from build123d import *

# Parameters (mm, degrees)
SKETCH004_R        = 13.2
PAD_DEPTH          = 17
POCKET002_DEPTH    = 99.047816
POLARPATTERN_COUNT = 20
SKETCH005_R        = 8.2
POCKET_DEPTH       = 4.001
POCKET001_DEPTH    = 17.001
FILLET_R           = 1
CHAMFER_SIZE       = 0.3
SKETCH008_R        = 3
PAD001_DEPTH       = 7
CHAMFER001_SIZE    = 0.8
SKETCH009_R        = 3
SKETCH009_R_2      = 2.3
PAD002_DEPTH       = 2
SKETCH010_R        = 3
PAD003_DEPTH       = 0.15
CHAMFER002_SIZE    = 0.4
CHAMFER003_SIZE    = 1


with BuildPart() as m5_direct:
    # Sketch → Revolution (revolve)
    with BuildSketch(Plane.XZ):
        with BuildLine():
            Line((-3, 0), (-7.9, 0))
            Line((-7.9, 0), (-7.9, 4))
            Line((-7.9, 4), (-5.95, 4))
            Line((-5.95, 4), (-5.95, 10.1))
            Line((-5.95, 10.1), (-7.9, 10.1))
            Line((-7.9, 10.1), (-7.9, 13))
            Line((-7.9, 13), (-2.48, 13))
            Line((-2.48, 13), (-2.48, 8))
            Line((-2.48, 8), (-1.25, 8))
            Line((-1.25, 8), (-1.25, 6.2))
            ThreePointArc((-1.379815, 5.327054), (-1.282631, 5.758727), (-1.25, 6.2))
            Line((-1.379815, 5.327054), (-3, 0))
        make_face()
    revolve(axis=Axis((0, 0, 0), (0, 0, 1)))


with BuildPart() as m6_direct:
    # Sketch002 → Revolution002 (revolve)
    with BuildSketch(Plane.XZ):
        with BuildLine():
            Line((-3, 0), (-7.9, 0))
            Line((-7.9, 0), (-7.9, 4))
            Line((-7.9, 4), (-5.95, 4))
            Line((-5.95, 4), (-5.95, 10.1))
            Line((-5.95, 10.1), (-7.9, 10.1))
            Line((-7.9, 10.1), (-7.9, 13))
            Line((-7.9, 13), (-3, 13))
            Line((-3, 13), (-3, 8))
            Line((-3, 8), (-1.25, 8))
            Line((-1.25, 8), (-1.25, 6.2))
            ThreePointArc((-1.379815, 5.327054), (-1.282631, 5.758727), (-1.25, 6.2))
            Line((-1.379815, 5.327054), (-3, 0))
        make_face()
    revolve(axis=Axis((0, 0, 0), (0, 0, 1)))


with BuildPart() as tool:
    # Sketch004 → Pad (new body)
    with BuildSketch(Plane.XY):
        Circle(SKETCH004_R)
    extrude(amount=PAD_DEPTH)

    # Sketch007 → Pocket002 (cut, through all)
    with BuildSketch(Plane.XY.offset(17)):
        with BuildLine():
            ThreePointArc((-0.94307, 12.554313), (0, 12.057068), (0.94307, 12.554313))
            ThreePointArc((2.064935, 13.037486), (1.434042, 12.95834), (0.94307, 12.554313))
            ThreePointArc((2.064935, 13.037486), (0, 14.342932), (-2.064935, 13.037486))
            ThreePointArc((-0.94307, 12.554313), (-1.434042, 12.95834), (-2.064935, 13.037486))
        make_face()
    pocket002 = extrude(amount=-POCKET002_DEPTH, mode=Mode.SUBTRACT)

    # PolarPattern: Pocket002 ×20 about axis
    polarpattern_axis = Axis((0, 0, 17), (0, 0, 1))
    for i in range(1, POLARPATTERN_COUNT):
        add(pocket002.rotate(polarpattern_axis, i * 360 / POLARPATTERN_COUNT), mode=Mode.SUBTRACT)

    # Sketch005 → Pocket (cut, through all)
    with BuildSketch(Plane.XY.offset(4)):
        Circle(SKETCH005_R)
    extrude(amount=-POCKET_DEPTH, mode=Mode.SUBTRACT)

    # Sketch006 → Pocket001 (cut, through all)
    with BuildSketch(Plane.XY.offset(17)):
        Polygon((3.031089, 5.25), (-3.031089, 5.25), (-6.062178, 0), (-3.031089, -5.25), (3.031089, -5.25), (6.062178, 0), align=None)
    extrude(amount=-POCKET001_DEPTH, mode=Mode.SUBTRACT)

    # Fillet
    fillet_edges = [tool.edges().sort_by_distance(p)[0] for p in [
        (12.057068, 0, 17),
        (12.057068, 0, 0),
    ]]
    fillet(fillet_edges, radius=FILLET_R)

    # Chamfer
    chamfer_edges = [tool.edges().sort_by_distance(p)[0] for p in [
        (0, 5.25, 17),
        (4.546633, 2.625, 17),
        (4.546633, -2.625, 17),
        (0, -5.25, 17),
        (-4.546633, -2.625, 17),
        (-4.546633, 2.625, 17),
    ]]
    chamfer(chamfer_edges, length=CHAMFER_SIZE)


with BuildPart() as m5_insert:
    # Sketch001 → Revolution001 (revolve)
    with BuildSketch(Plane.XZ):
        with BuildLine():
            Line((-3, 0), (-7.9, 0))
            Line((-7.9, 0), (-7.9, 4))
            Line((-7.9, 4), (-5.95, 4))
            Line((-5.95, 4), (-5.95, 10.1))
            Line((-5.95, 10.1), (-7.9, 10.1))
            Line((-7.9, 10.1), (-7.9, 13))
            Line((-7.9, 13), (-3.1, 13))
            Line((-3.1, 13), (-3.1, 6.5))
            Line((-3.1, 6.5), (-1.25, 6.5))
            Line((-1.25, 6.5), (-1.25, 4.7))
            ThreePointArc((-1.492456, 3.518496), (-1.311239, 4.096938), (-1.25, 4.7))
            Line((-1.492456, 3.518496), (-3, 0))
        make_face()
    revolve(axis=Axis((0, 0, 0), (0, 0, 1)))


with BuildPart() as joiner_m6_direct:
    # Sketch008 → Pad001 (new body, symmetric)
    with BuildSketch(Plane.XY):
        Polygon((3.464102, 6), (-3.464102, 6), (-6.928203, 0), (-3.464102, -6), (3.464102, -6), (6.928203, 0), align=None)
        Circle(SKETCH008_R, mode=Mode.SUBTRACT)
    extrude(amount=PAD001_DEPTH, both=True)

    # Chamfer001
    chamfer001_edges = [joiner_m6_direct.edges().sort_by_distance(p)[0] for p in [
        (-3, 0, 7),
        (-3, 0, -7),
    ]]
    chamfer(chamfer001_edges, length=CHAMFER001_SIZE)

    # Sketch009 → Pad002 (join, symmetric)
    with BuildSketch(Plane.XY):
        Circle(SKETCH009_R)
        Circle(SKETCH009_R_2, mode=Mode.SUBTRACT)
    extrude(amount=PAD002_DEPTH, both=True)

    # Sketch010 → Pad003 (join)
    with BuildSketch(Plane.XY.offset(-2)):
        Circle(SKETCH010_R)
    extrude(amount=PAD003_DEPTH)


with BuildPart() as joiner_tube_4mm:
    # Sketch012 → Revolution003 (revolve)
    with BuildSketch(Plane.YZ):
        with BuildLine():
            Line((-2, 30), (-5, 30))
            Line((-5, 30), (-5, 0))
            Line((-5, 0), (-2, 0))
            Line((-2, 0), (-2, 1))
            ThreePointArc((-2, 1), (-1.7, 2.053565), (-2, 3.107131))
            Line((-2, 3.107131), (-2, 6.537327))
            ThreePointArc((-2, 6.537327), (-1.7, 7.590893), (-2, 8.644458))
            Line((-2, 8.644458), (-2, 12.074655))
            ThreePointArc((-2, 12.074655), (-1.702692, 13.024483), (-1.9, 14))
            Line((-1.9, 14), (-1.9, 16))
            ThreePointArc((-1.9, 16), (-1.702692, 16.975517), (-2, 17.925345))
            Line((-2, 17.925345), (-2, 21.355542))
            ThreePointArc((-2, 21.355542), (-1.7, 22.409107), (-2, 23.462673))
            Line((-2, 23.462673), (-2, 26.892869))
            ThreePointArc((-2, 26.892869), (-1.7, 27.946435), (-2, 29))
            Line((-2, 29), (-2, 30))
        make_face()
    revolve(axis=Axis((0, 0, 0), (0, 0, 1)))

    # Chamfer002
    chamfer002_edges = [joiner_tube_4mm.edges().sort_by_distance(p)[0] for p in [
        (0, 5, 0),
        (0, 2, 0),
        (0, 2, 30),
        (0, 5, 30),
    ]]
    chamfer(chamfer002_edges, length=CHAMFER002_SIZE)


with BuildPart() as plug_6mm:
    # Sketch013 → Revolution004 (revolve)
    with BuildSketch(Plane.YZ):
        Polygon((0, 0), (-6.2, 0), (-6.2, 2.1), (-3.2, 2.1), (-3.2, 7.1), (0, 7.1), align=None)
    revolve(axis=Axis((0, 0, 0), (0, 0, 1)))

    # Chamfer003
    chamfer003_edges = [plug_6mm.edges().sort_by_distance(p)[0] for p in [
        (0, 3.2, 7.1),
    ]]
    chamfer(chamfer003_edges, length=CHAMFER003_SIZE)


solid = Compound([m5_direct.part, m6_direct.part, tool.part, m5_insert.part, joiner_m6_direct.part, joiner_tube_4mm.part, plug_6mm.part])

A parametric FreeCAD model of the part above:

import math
import FreeCAD as App
import Part
import Sketcher
Q = App.Units.Quantity


def edges_at(feature, points):
    """Names of the edges that pass closest to the given points."""
    edges = feature.Shape.Edges
    near = lambda p: min(range(len(edges)), key=lambda i: edges[i].distToShape(Part.Vertex(*p))[0])
    return sorted({f"Edge{near(p) + 1}" for p in points})

doc = App.newDocument("Part")
body = doc.addObject("PartDesign::Body", "Body")

sketch1 = body.newObject("Sketcher::SketchObject", "Sketch")
sketch1.AttachmentSupport = (doc.getObject("XZ_Plane"), [""])
sketch1.MapMode = "FlatFace"
sketch1.addGeometry(Part.LineSegment(App.Vector(-7.9, 0, 0), App.Vector(-3, 0, 0)), False)
sketch1.addGeometry(Part.LineSegment(App.Vector(-3, 0, 0), App.Vector(-1.4, 5.3, 0)), False)
sketch1.addGeometry(Part.ArcOfCircle(Part.Circle(App.Vector(-4.2, 6.2, 0), App.Vector(0, 0, 1), 3), math.radians(-16.92), math.radians(0)), False)
sketch1.addGeometry(Part.LineSegment(App.Vector(-1.2, 6.2, 0), App.Vector(-1.2, 8, 0)), False)
sketch1.addGeometry(Part.LineSegment(App.Vector(-1.2, 8, 0), App.Vector(-2.5, 8, 0)), False)
sketch1.addGeometry(Part.LineSegment(App.Vector(-2.5, 8, 0), App.Vector(-2.5, 13, 0)), False)
sketch1.addGeometry(Part.LineSegment(App.Vector(-2.5, 13, 0), App.Vector(-7.9, 13, 0)), False)
sketch1.addGeometry(Part.LineSegment(App.Vector(-7.9, 13, 0), App.Vector(-7.9, 10.1, 0)), False)
sketch1.addGeometry(Part.LineSegment(App.Vector(-7.9, 10.1, 0), App.Vector(-6, 10.1, 0)), False)
sketch1.addGeometry(Part.LineSegment(App.Vector(-6, 10.1, 0), App.Vector(-6, 4, 0)), False)
sketch1.addGeometry(Part.LineSegment(App.Vector(-6, 4, 0), App.Vector(-7.9, 4, 0)), False)
sketch1.addGeometry(Part.LineSegment(App.Vector(-7.9, 4, 0), App.Vector(-7.9, 0, 0)), False)
sketch1.addConstraint(Sketcher.Constraint("Coincident", 0, 2, 1, 1))
sketch1.addConstraint(Sketcher.Constraint("Coincident", 1, 2, 2, 1))
sketch1.addConstraint(Sketcher.Constraint("Tangent", 2, 2, 3, 1))
sketch1.addConstraint(Sketcher.Constraint("Coincident", 3, 2, 4, 1))
sketch1.addConstraint(Sketcher.Constraint("Coincident", 4, 2, 5, 1))
sketch1.addConstraint(Sketcher.Constraint("Coincident", 5, 2, 6, 1))
sketch1.addConstraint(Sketcher.Constraint("Coincident", 6, 2, 7, 1))
sketch1.addConstraint(Sketcher.Constraint("Coincident", 7, 2, 8, 1))
sketch1.addConstraint(Sketcher.Constraint("Coincident", 8, 2, 9, 1))
sketch1.addConstraint(Sketcher.Constraint("Coincident", 9, 2, 10, 1))
sketch1.addConstraint(Sketcher.Constraint("Coincident", 10, 2, 11, 1))
sketch1.addConstraint(Sketcher.Constraint("Coincident", 11, 2, 0, 1))
sketch1.addConstraint(Sketcher.Constraint("Horizontal", 0))
sketch1.addConstraint(Sketcher.Constraint("Vertical", 3))
sketch1.addConstraint(Sketcher.Constraint("Horizontal", 4))
sketch1.addConstraint(Sketcher.Constraint("Vertical", 5))
sketch1.addConstraint(Sketcher.Constraint("Horizontal", 6))
sketch1.addConstraint(Sketcher.Constraint("Vertical", 7))
sketch1.addConstraint(Sketcher.Constraint("Horizontal", 8))
sketch1.addConstraint(Sketcher.Constraint("Vertical", 9))
sketch1.addConstraint(Sketcher.Constraint("Horizontal", 10))
sketch1.addConstraint(Sketcher.Constraint("Vertical", 11))
sketch1.addConstraint(Sketcher.Constraint("PointOnObject", 0, 2, -1))
sketch1.addConstraint(Sketcher.Constraint("Vertical", 7, 2, 10, 2))
sketch1.addConstraint(Sketcher.Constraint("DistanceY", 5, 1, 5, 2, Q("5 mm")))
sketch1.addConstraint(Sketcher.Constraint("DistanceY", 11, 2, 11, 1, Q("4 mm")))
sketch1.addConstraint(Sketcher.Constraint("DistanceX", 0, 1, 0, 2, Q("4.9 mm")))
sketch1.addConstraint(Sketcher.Constraint("DistanceY", 3, 1, 3, 2, Q("1.8 mm")))
sketch1.addConstraint(Sketcher.Constraint("DistanceY", 7, 2, 7, 1, Q("2.9 mm")))
sketch1.addConstraint(Sketcher.Constraint("DistanceY", 9, 2, 9, 1, Q("6.1 mm")))
sketch1.addConstraint(Sketcher.Constraint("DistanceX", 0, 2, -1, 1, Q("3 mm")))
sketch1.addConstraint(Sketcher.Constraint("DistanceX", 4, 2, 4, 1, Q("1.23 mm")))
sketch1.addConstraint(Sketcher.Constraint("DistanceX", 6, 2, 6, 1, Q("5.42 mm")))
sketch1.addConstraint(Sketcher.Constraint("DistanceX", 8, 1, 8, 2, Q("1.95 mm")))
sketch1.addConstraint(Sketcher.Constraint("Radius", 2, Q("2.999965 mm")))
sketch1.addConstraint(Sketcher.Constraint("Distance", 1, Q("5.567989 mm")))
revolution = body.newObject("PartDesign::Revolution", "Revolution")
revolution.Profile = sketch1
revolution.ReferenceAxis = (sketch1, ["V_Axis"])
revolution.Angle = 360
body2 = doc.addObject("PartDesign::Body", "Body001")

sketch2 = body2.newObject("Sketcher::SketchObject", "Sketch001")
sketch2.AttachmentSupport = (doc.getObject("XZ_Plane001"), [""])
sketch2.MapMode = "FlatFace"
sketch2.addGeometry(Part.LineSegment(App.Vector(-7.9, 0, 0), App.Vector(-3, 0, 0)), False)
sketch2.addGeometry(Part.LineSegment(App.Vector(-3, 0, 0), App.Vector(-1.4, 5.3, 0)), False)
sketch2.addGeometry(Part.ArcOfCircle(Part.Circle(App.Vector(-4.2, 6.2, 0), App.Vector(0, 0, 1), 3), math.radians(-16.92), math.radians(0)), False)
sketch2.addGeometry(Part.LineSegment(App.Vector(-1.2, 6.2, 0), App.Vector(-1.2, 8, 0)), False)
sketch2.addGeometry(Part.LineSegment(App.Vector(-1.2, 8, 0), App.Vector(-3, 8, 0)), False)
sketch2.addGeometry(Part.LineSegment(App.Vector(-3, 8, 0), App.Vector(-3, 13, 0)), False)
sketch2.addGeometry(Part.LineSegment(App.Vector(-3, 13, 0), App.Vector(-7.9, 13, 0)), False)
sketch2.addGeometry(Part.LineSegment(App.Vector(-7.9, 13, 0), App.Vector(-7.9, 10.1, 0)), False)
sketch2.addGeometry(Part.LineSegment(App.Vector(-7.9, 10.1, 0), App.Vector(-6, 10.1, 0)), False)
sketch2.addGeometry(Part.LineSegment(App.Vector(-6, 10.1, 0), App.Vector(-6, 4, 0)), False)
sketch2.addGeometry(Part.LineSegment(App.Vector(-6, 4, 0), App.Vector(-7.9, 4, 0)), False)
sketch2.addGeometry(Part.LineSegment(App.Vector(-7.9, 4, 0), App.Vector(-7.9, 0, 0)), False)
sketch2.addConstraint(Sketcher.Constraint("Coincident", 0, 2, 1, 1))
sketch2.addConstraint(Sketcher.Constraint("Coincident", 1, 2, 2, 1))
sketch2.addConstraint(Sketcher.Constraint("Tangent", 2, 2, 3, 1))
sketch2.addConstraint(Sketcher.Constraint("Coincident", 3, 2, 4, 1))
sketch2.addConstraint(Sketcher.Constraint("Coincident", 4, 2, 5, 1))
sketch2.addConstraint(Sketcher.Constraint("Coincident", 5, 2, 6, 1))
sketch2.addConstraint(Sketcher.Constraint("Coincident", 6, 2, 7, 1))
sketch2.addConstraint(Sketcher.Constraint("Coincident", 7, 2, 8, 1))
sketch2.addConstraint(Sketcher.Constraint("Coincident", 8, 2, 9, 1))
sketch2.addConstraint(Sketcher.Constraint("Coincident", 9, 2, 10, 1))
sketch2.addConstraint(Sketcher.Constraint("Coincident", 10, 2, 11, 1))
sketch2.addConstraint(Sketcher.Constraint("Coincident", 11, 2, 0, 1))
sketch2.addConstraint(Sketcher.Constraint("Horizontal", 0))
sketch2.addConstraint(Sketcher.Constraint("Vertical", 3))
sketch2.addConstraint(Sketcher.Constraint("Horizontal", 4))
sketch2.addConstraint(Sketcher.Constraint("Vertical", 5))
sketch2.addConstraint(Sketcher.Constraint("Horizontal", 6))
sketch2.addConstraint(Sketcher.Constraint("Vertical", 7))
sketch2.addConstraint(Sketcher.Constraint("Horizontal", 8))
sketch2.addConstraint(Sketcher.Constraint("Vertical", 9))
sketch2.addConstraint(Sketcher.Constraint("Horizontal", 10))
sketch2.addConstraint(Sketcher.Constraint("Vertical", 11))
sketch2.addConstraint(Sketcher.Constraint("PointOnObject", 0, 2, -1))
sketch2.addConstraint(Sketcher.Constraint("Vertical", 0, 2, 4, 2))
sketch2.addConstraint(Sketcher.Constraint("Vertical", 7, 2, 10, 2))
sketch2.addConstraint(Sketcher.Constraint("DistanceY", 5, 1, 5, 2, Q("5 mm")))
sketch2.addConstraint(Sketcher.Constraint("DistanceY", 11, 2, 11, 1, Q("4 mm")))
sketch2.addConstraint(Sketcher.Constraint("DistanceX", 0, 1, 0, 2, Q("4.9 mm")))
sketch2.addConstraint(Sketcher.Constraint("DistanceY", 3, 1, 3, 2, Q("1.8 mm")))
sketch2.addConstraint(Sketcher.Constraint("DistanceY", 7, 2, 7, 1, Q("2.9 mm")))
sketch2.addConstraint(Sketcher.Constraint("DistanceY", 9, 2, 9, 1, Q("6.1 mm")))
sketch2.addConstraint(Sketcher.Constraint("DistanceX", 0, 2, -1, 1, Q("3 mm")))
sketch2.addConstraint(Sketcher.Constraint("DistanceX", 4, 2, 4, 1, Q("1.75 mm")))
sketch2.addConstraint(Sketcher.Constraint("DistanceX", 8, 1, 8, 2, Q("1.95 mm")))
sketch2.addConstraint(Sketcher.Constraint("Radius", 2, Q("2.999965 mm")))
sketch2.addConstraint(Sketcher.Constraint("Distance", 1, Q("5.567989 mm")))
revolution2 = body2.newObject("PartDesign::Revolution", "Revolution001")
revolution2.Profile = sketch2
revolution2.ReferenceAxis = (sketch2, ["V_Axis"])
revolution2.Angle = 360
body3 = doc.addObject("PartDesign::Body", "Body002")

sketch3 = body3.newObject("Sketcher::SketchObject", "Sketch002")
sketch3.AttachmentSupport = (doc.getObject("XY_Plane002"), [""])
sketch3.MapMode = "FlatFace"
sketch3.addGeometry(Part.Circle(App.Vector(0, 0, 0), App.Vector(0, 0, 1), 13), False)
sketch3.addConstraint(Sketcher.Constraint("Coincident", 0, 3, -1, 1))
sketch3.addConstraint(Sketcher.Constraint("Diameter", 0, Q("26.4 mm")))
pad1 = body3.newObject("PartDesign::Pad", "Pad")
pad1.Profile = sketch3
pad1.Length = 17

sketch4 = body3.newObject("Sketcher::SketchObject", "Sketch003")
sketch4.AttachmentSupport = (doc.getObject("XY_Plane002"), [""])
sketch4.MapMode = "FlatFace"
sketch4.AttachmentOffset = App.Placement(App.Vector(0, 0, 17), App.Rotation())
sketch4.addGeometry(Part.ArcOfCircle(Part.Circle(App.Vector(0, 13.2, 0), App.Vector(0, 0, 1), 1.1), math.radians(-146), math.radians(-34)), False)
sketch4.addGeometry(Part.ArcOfCircle(Part.Circle(App.Vector(1.9, 11.9, 0), App.Vector(0, 0, 1), 1.1), math.radians(81), math.radians(146)), False)
sketch4.addGeometry(Part.ArcOfCircle(Part.Circle(App.Vector(0, 12.1, 0), App.Vector(0, 0, 1), 2.3), math.radians(25), math.radians(155)), False)
sketch4.addGeometry(Part.ArcOfCircle(Part.Circle(App.Vector(-1.9, 11.9, 0), App.Vector(0, 0, 1), 1.1), math.radians(34), math.radians(99)), False)
sketch4.addConstraint(Sketcher.Constraint("Tangent", 0, 2, 1, 2))
sketch4.addConstraint(Sketcher.Constraint("Coincident", 1, 1, 2, 1))
sketch4.addConstraint(Sketcher.Constraint("Coincident", 2, 2, 3, 2))
sketch4.addConstraint(Sketcher.Constraint("Tangent", 3, 1, 0, 1))
sketch4.addConstraint(Sketcher.Constraint("Equal", 0, 1))
sketch4.addConstraint(Sketcher.Constraint("Equal", 1, 3))
sketch4.addConstraint(Sketcher.Constraint("Symmetric", 1, 3, 3, 3, -2))
sketch4.addConstraint(Sketcher.Constraint("PointOnObject", 2, 3, -2))
sketch4.addConstraint(Sketcher.Constraint("DistanceY", -1, 1, 0, 3, Q("13.199999 mm")))
sketch4.addConstraint(Sketcher.Constraint("Radius", 0, Q("1.142931 mm")))
sketch4.addConstraint(Sketcher.Constraint("Radius", 2, Q("2.285865 mm")))
sketch4.addConstraint(Sketcher.Constraint("DistanceX", -1, 1, 1, 3, Q("1.886141 mm")))
sketch4.addConstraint(Sketcher.Constraint("DistanceY", 2, 3, 0, 3, Q("1.142932 mm")))
pocket1 = body3.newObject("PartDesign::Pocket", "Pocket")
pocket1.Profile = sketch4
pocket1.Type = "ThroughAll"
doc.recompute()

polarpattern = body3.newObject("PartDesign::PolarPattern", "PolarPattern")
polarpattern.Originals = [pocket1]
polarpattern.Axis = (doc.getObject("Z_Axis002"), [""])
polarpattern.Angle = 360
polarpattern.Occurrences = 20
body3.Tip = polarpattern

sketch5 = body3.newObject("Sketcher::SketchObject", "Sketch004")
sketch5.AttachmentSupport = (doc.getObject("XY_Plane002"), [""])
sketch5.MapMode = "FlatFace"
sketch5.AttachmentOffset = App.Placement(App.Vector(0, 0, 4), App.Rotation())
sketch5.addGeometry(Part.Circle(App.Vector(0, 0, 0), App.Vector(0, 0, 1), 8), False)
sketch5.addConstraint(Sketcher.Constraint("Coincident", 0, 3, -1, 1))
sketch5.addConstraint(Sketcher.Constraint("Diameter", 0, Q("16.4 mm")))
pocket2 = body3.newObject("PartDesign::Pocket", "Pocket001")
pocket2.Profile = sketch5
pocket2.Type = "ThroughAll"

sketch6 = body3.newObject("Sketcher::SketchObject", "Sketch005")
sketch6.AttachmentSupport = (doc.getObject("XY_Plane002"), [""])
sketch6.MapMode = "FlatFace"
sketch6.AttachmentOffset = App.Placement(App.Vector(0, 0, 17), App.Rotation())
sketch6.addGeometry(Part.LineSegment(App.Vector(3, 5, 0), App.Vector(-3, 5, 0)), False)
sketch6.addGeometry(Part.LineSegment(App.Vector(-3, 5, 0), App.Vector(-6, 0, 0)), False)
sketch6.addGeometry(Part.LineSegment(App.Vector(-6, 0, 0), App.Vector(-3, -5, 0)), False)
sketch6.addGeometry(Part.LineSegment(App.Vector(-3, -5, 0), App.Vector(3, -5, 0)), False)
sketch6.addGeometry(Part.LineSegment(App.Vector(3, -5, 0), App.Vector(6, 0, 0)), False)
sketch6.addGeometry(Part.LineSegment(App.Vector(6, 0, 0), App.Vector(3, 5, 0)), False)
sketch6.addConstraint(Sketcher.Constraint("Coincident", 0, 2, 1, 1))
sketch6.addConstraint(Sketcher.Constraint("Coincident", 1, 2, 2, 1))
sketch6.addConstraint(Sketcher.Constraint("Coincident", 2, 2, 3, 1))
sketch6.addConstraint(Sketcher.Constraint("Coincident", 3, 2, 4, 1))
sketch6.addConstraint(Sketcher.Constraint("Coincident", 4, 2, 5, 1))
sketch6.addConstraint(Sketcher.Constraint("Coincident", 5, 2, 0, 1))
sketch6.addConstraint(Sketcher.Constraint("Horizontal", 0))
sketch6.addConstraint(Sketcher.Constraint("Horizontal", 3))
sketch6.addConstraint(Sketcher.Constraint("Symmetric", 0, 2, 3, 2, -1, 1))
sketch6.addConstraint(Sketcher.Constraint("Symmetric", 1, 2, 4, 2, -1, 1))
sketch6.addConstraint(Sketcher.Constraint("PointOnObject", 1, 2, -1))
sketch6.addConstraint(Sketcher.Constraint("Parallel", 2, 5))
sketch6.addConstraint(Sketcher.Constraint("Vertical", 0, 2, 2, 2))
sketch6.addConstraint(Sketcher.Constraint("Angle", 1, Q("-120.000001 deg")))
sketch6.addConstraint(Sketcher.Constraint("DistanceY", 2, 2, 0, 2, Q("10.5 mm")))
sketch6.addConstraint(Sketcher.Constraint("DistanceX", 0, 2, 0, 1, Q("6.062178 mm")))
pocket3 = body3.newObject("PartDesign::Pocket", "Pocket002")
pocket3.Profile = sketch6
pocket3.Type = "ThroughAll"
doc.recompute()

fillet = body3.newObject("PartDesign::Fillet", "Fillet")
fillet.Base = (pocket3, edges_at(pocket3, [(12.057, 0, 17), (12.057, 0, 0)]))
fillet.Radius = 1
doc.recompute()

chamfer = body3.newObject("PartDesign::Chamfer", "Chamfer")
chamfer.Base = (fillet, edges_at(fillet, [
    (0, 5.25, 17),
    (4.547, 2.625, 17),
    (4.547, -2.625, 17),
    (0, -5.25, 17),
    (-4.547, -2.625, 17),
    (-4.547, 2.625, 17),
]))
chamfer.Size = 0.3
body4 = doc.addObject("PartDesign::Body", "Body003")

sketch7 = body4.newObject("Sketcher::SketchObject", "Sketch006")
sketch7.AttachmentSupport = (doc.getObject("XZ_Plane003"), [""])
sketch7.MapMode = "FlatFace"
sketch7.addGeometry(Part.LineSegment(App.Vector(-7.9, 0, 0), App.Vector(-3, 0, 0)), False)
sketch7.addGeometry(Part.LineSegment(App.Vector(-3, 0, 0), App.Vector(-1.5, 3.5, 0)), False)
sketch7.addGeometry(Part.ArcOfCircle(Part.Circle(App.Vector(-4.3, 4.7, 0), App.Vector(0, 0, 1), 3), math.radians(-23), math.radians(0)), False)
sketch7.addGeometry(Part.LineSegment(App.Vector(-1.2, 4.7, 0), App.Vector(-1.2, 6.5, 0)), False)
sketch7.addGeometry(Part.LineSegment(App.Vector(-1.2, 6.5, 0), App.Vector(-3.1, 6.5, 0)), False)
sketch7.addGeometry(Part.LineSegment(App.Vector(-3.1, 6.5, 0), App.Vector(-3.1, 13, 0)), False)
sketch7.addGeometry(Part.LineSegment(App.Vector(-3.1, 13, 0), App.Vector(-7.9, 13, 0)), False)
sketch7.addGeometry(Part.LineSegment(App.Vector(-7.9, 13, 0), App.Vector(-7.9, 10.1, 0)), False)
sketch7.addGeometry(Part.LineSegment(App.Vector(-7.9, 10.1, 0), App.Vector(-6, 10.1, 0)), False)
sketch7.addGeometry(Part.LineSegment(App.Vector(-6, 10.1, 0), App.Vector(-6, 4, 0)), False)
sketch7.addGeometry(Part.LineSegment(App.Vector(-6, 4, 0), App.Vector(-7.9, 4, 0)), False)
sketch7.addGeometry(Part.LineSegment(App.Vector(-7.9, 4, 0), App.Vector(-7.9, 0, 0)), False)
sketch7.addConstraint(Sketcher.Constraint("Coincident", 0, 2, 1, 1))
sketch7.addConstraint(Sketcher.Constraint("Tangent", 1, 2, 2, 1))
sketch7.addConstraint(Sketcher.Constraint("Tangent", 2, 2, 3, 1))
sketch7.addConstraint(Sketcher.Constraint("Coincident", 3, 2, 4, 1))
sketch7.addConstraint(Sketcher.Constraint("Coincident", 4, 2, 5, 1))
sketch7.addConstraint(Sketcher.Constraint("Coincident", 5, 2, 6, 1))
sketch7.addConstraint(Sketcher.Constraint("Coincident", 6, 2, 7, 1))
sketch7.addConstraint(Sketcher.Constraint("Coincident", 7, 2, 8, 1))
sketch7.addConstraint(Sketcher.Constraint("Coincident", 8, 2, 9, 1))
sketch7.addConstraint(Sketcher.Constraint("Coincident", 9, 2, 10, 1))
sketch7.addConstraint(Sketcher.Constraint("Coincident", 10, 2, 11, 1))
sketch7.addConstraint(Sketcher.Constraint("Coincident", 11, 2, 0, 1))
sketch7.addConstraint(Sketcher.Constraint("Horizontal", 0))
sketch7.addConstraint(Sketcher.Constraint("Vertical", 3))
sketch7.addConstraint(Sketcher.Constraint("Horizontal", 4))
sketch7.addConstraint(Sketcher.Constraint("Vertical", 5))
sketch7.addConstraint(Sketcher.Constraint("Horizontal", 6))
sketch7.addConstraint(Sketcher.Constraint("Vertical", 7))
sketch7.addConstraint(Sketcher.Constraint("Horizontal", 8))
sketch7.addConstraint(Sketcher.Constraint("Vertical", 9))
sketch7.addConstraint(Sketcher.Constraint("Horizontal", 10))
sketch7.addConstraint(Sketcher.Constraint("Vertical", 11))
sketch7.addConstraint(Sketcher.Constraint("PointOnObject", 0, 2, -1))
sketch7.addConstraint(Sketcher.Constraint("Vertical", 7, 2, 10, 2))
sketch7.addConstraint(Sketcher.Constraint("DistanceY", 11, 2, 11, 1, Q("4 mm")))
sketch7.addConstraint(Sketcher.Constraint("DistanceX", 0, 1, 0, 2, Q("4.9 mm")))
sketch7.addConstraint(Sketcher.Constraint("DistanceX", 6, 2, 6, 1, Q("4.8 mm")))
sketch7.addConstraint(Sketcher.Constraint("DistanceY", 3, 1, 3, 2, Q("1.8 mm")))
sketch7.addConstraint(Sketcher.Constraint("DistanceY", 5, 1, 5, 2, Q("6.5 mm")))
sketch7.addConstraint(Sketcher.Constraint("DistanceY", 7, 2, 7, 1, Q("2.9 mm")))
sketch7.addConstraint(Sketcher.Constraint("DistanceY", 9, 2, 9, 1, Q("6.1 mm")))
sketch7.addConstraint(Sketcher.Constraint("DistanceX", 0, 2, -1, 1, Q("3 mm")))
sketch7.addConstraint(Sketcher.Constraint("DistanceX", 4, 2, 4, 1, Q("1.85 mm")))
sketch7.addConstraint(Sketcher.Constraint("DistanceX", 8, 1, 8, 2, Q("1.95 mm")))
sketch7.addConstraint(Sketcher.Constraint("Radius", 2, Q("3.000003 mm")))
revolution3 = body4.newObject("PartDesign::Revolution", "Revolution002")
revolution3.Profile = sketch7
revolution3.ReferenceAxis = (sketch7, ["V_Axis"])
revolution3.Angle = 360
body5 = doc.addObject("PartDesign::Body", "Body004")

sketch8 = body5.newObject("Sketcher::SketchObject", "Sketch007")
sketch8.AttachmentSupport = (doc.getObject("XY_Plane004"), [""])
sketch8.MapMode = "FlatFace"
sketch8.addGeometry(Part.LineSegment(App.Vector(3.5, 6, 0), App.Vector(-3.5, 6, 0)), False)
sketch8.addGeometry(Part.LineSegment(App.Vector(-3.5, 6, 0), App.Vector(-6.9, 0, 0)), False)
sketch8.addGeometry(Part.LineSegment(App.Vector(-6.9, 0, 0), App.Vector(-3.5, -6, 0)), False)
sketch8.addGeometry(Part.LineSegment(App.Vector(-3.5, -6, 0), App.Vector(3.5, -6, 0)), False)
sketch8.addGeometry(Part.LineSegment(App.Vector(3.5, -6, 0), App.Vector(6.9, 0, 0)), False)
sketch8.addGeometry(Part.LineSegment(App.Vector(6.9, 0, 0), App.Vector(3.5, 6, 0)), False)
sketch8.addGeometry(Part.Circle(App.Vector(0, 0, 0), App.Vector(0, 0, 1), 3), False)
sketch8.addConstraint(Sketcher.Constraint("Coincident", 0, 2, 1, 1))
sketch8.addConstraint(Sketcher.Constraint("Coincident", 1, 2, 2, 1))
sketch8.addConstraint(Sketcher.Constraint("Coincident", 2, 2, 3, 1))
sketch8.addConstraint(Sketcher.Constraint("Coincident", 3, 2, 4, 1))
sketch8.addConstraint(Sketcher.Constraint("Coincident", 4, 2, 5, 1))
sketch8.addConstraint(Sketcher.Constraint("Coincident", 5, 2, 0, 1))
sketch8.addConstraint(Sketcher.Constraint("Horizontal", 0))
sketch8.addConstraint(Sketcher.Constraint("Horizontal", 3))
sketch8.addConstraint(Sketcher.Constraint("Coincident", 6, 3, -1, 1))
sketch8.addConstraint(Sketcher.Constraint("Symmetric", 0, 2, 3, 2, -1, 1))
sketch8.addConstraint(Sketcher.Constraint("Symmetric", 1, 2, 4, 2, -1, 1))
sketch8.addConstraint(Sketcher.Constraint("PointOnObject", 1, 2, -1))
sketch8.addConstraint(Sketcher.Constraint("Parallel", 2, 5))
sketch8.addConstraint(Sketcher.Constraint("Vertical", 0, 2, 2, 2))
sketch8.addConstraint(Sketcher.Constraint("Diameter", 6, Q("6 mm")))
sketch8.addConstraint(Sketcher.Constraint("Angle", 1, Q("-119.999996 deg")))
sketch8.addConstraint(Sketcher.Constraint("DistanceY", -1, 1, 0, 2, Q("6 mm")))
sketch8.addConstraint(Sketcher.Constraint("DistanceX", 0, 2, -1, 1, Q("3.464102 mm")))
pad2 = body5.newObject("PartDesign::Pad", "Pad001")
pad2.Profile = sketch8
pad2.Length = 14
pad2.Midplane = True
doc.recompute()

chamfer2 = body5.newObject("PartDesign::Chamfer", "Chamfer001")
chamfer2.Base = (pad2, edges_at(pad2, [(-3, 0, 7), (-3, 0, -7)]))
chamfer2.Size = 0.8

sketch9 = body5.newObject("Sketcher::SketchObject", "Sketch008")
sketch9.AttachmentSupport = (doc.getObject("XY_Plane004"), [""])
sketch9.MapMode = "FlatFace"
sketch9.addGeometry(Part.Circle(App.Vector(0, 0, 0), App.Vector(0, 0, 1), 3), False)
sketch9.addGeometry(Part.Circle(App.Vector(0, 0, 0), App.Vector(0, 0, 1), 2.3), False)
sketch9.addConstraint(Sketcher.Constraint("Coincident", 0, 3, -1, 1))
sketch9.addConstraint(Sketcher.Constraint("Coincident", 1, 3, -1, 1))
sketch9.addConstraint(Sketcher.Constraint("Diameter", 0, Q("6 mm")))
sketch9.addConstraint(Sketcher.Constraint("Diameter", 1, Q("4.6 mm")))
pad3 = body5.newObject("PartDesign::Pad", "Pad002")
pad3.Profile = sketch9
pad3.Length = 4
pad3.Midplane = True

sketch10 = body5.newObject("Sketcher::SketchObject", "Sketch009")
sketch10.AttachmentSupport = (doc.getObject("XY_Plane004"), [""])
sketch10.MapMode = "FlatFace"
sketch10.AttachmentOffset = App.Placement(App.Vector(0, 0, -2), App.Rotation())
sketch10.addGeometry(Part.Circle(App.Vector(0, 0, 0), App.Vector(0, 0, 1), 3), False)
sketch10.addConstraint(Sketcher.Constraint("Coincident", 0, 3, -1, 1))
sketch10.addConstraint(Sketcher.Constraint("Diameter", 0, Q("6 mm")))
pad4 = body5.newObject("PartDesign::Pad", "Pad003")
pad4.Profile = sketch10
pad4.Length = 0.15
body6 = doc.addObject("PartDesign::Body", "Body005")

sketch11 = body6.newObject("Sketcher::SketchObject", "Sketch010")
sketch11.AttachmentSupport = (doc.getObject("YZ_Plane005"), [""])
sketch11.MapMode = "FlatFace"
sketch11.addGeometry(Part.LineSegment(App.Vector(-2, 30, 0), App.Vector(-5, 30, 0)), False)
sketch11.addGeometry(Part.LineSegment(App.Vector(-5, 30, 0), App.Vector(-5, 0, 0)), False)
sketch11.addGeometry(Part.LineSegment(App.Vector(-5, 0, 0), App.Vector(-2, 0, 0)), False)
sketch11.addGeometry(Part.LineSegment(App.Vector(-2, 0, 0), App.Vector(-2, 1, 0)), False)
sketch11.addGeometry(Part.ArcOfCircle(Part.Circle(App.Vector(-3.7, 2.1, 0), App.Vector(0, 0, 1), 2), math.radians(-32), math.radians(32)), False)
sketch11.addGeometry(Part.LineSegment(App.Vector(-2, 3.1, 0), App.Vector(-2, 6.5, 0)), False)
sketch11.addGeometry(Part.ArcOfCircle(Part.Circle(App.Vector(-3.7, 7.6, 0), App.Vector(0, 0, 1), 2), math.radians(-32), math.radians(32)), False)
sketch11.addGeometry(Part.LineSegment(App.Vector(-2, 8.6, 0), App.Vector(-2, 12.1, 0)), False)
sketch11.addGeometry(Part.ArcOfCircle(Part.Circle(App.Vector(-3.7, 13.1, 0), App.Vector(0, 0, 1), 2), math.radians(-32), math.radians(26)), False)
sketch11.addGeometry(Part.LineSegment(App.Vector(-1.9, 14, 0), App.Vector(-1.9, 16, 0)), False)
sketch11.addGeometry(Part.ArcOfCircle(Part.Circle(App.Vector(-3.7, 16.9, 0), App.Vector(0, 0, 1), 2), math.radians(-26), math.radians(32)), False)
sketch11.addGeometry(Part.LineSegment(App.Vector(-2, 17.9, 0), App.Vector(-2, 21.4, 0)), False)
sketch11.addGeometry(Part.ArcOfCircle(Part.Circle(App.Vector(-3.7, 22.4, 0), App.Vector(0, 0, 1), 2), math.radians(-32), math.radians(32)), False)
sketch11.addGeometry(Part.LineSegment(App.Vector(-2, 23.5, 0), App.Vector(-2, 26.9, 0)), False)
sketch11.addGeometry(Part.ArcOfCircle(Part.Circle(App.Vector(-3.7, 27.9, 0), App.Vector(0, 0, 1), 2), math.radians(-32), math.radians(32)), False)
sketch11.addGeometry(Part.LineSegment(App.Vector(-2, 29, 0), App.Vector(-2, 30, 0)), False)
sketch11.addConstraint(Sketcher.Constraint("Coincident", 0, 2, 1, 1))
sketch11.addConstraint(Sketcher.Constraint("Coincident", 1, 2, 2, 1))
sketch11.addConstraint(Sketcher.Constraint("Coincident", 2, 2, 3, 1))
sketch11.addConstraint(Sketcher.Constraint("Coincident", 3, 2, 4, 1))
sketch11.addConstraint(Sketcher.Constraint("Coincident", 4, 2, 5, 1))
sketch11.addConstraint(Sketcher.Constraint("Coincident", 5, 2, 6, 1))
sketch11.addConstraint(Sketcher.Constraint("Coincident", 6, 2, 7, 1))
sketch11.addConstraint(Sketcher.Constraint("Coincident", 7, 2, 8, 1))
sketch11.addConstraint(Sketcher.Constraint("Coincident", 8, 2, 9, 1))
sketch11.addConstraint(Sketcher.Constraint("Coincident", 9, 2, 10, 1))
sketch11.addConstraint(Sketcher.Constraint("Coincident", 10, 2, 11, 1))
sketch11.addConstraint(Sketcher.Constraint("Coincident", 11, 2, 12, 1))
sketch11.addConstraint(Sketcher.Constraint("Coincident", 12, 2, 13, 1))
sketch11.addConstraint(Sketcher.Constraint("Coincident", 13, 2, 14, 1))
sketch11.addConstraint(Sketcher.Constraint("Coincident", 14, 2, 15, 1))
sketch11.addConstraint(Sketcher.Constraint("Coincident", 15, 2, 0, 1))
sketch11.addConstraint(Sketcher.Constraint("Horizontal", 0))
sketch11.addConstraint(Sketcher.Constraint("Vertical", 1))
sketch11.addConstraint(Sketcher.Constraint("Horizontal", 2))
sketch11.addConstraint(Sketcher.Constraint("Vertical", 3))
sketch11.addConstraint(Sketcher.Constraint("Vertical", 5))
sketch11.addConstraint(Sketcher.Constraint("Vertical", 7))
sketch11.addConstraint(Sketcher.Constraint("Vertical", 9))
sketch11.addConstraint(Sketcher.Constraint("Vertical", 11))
sketch11.addConstraint(Sketcher.Constraint("Vertical", 13))
sketch11.addConstraint(Sketcher.Constraint("Vertical", 15))
sketch11.addConstraint(Sketcher.Constraint("Equal", 4, 6))
sketch11.addConstraint(Sketcher.Constraint("Equal", 6, 8))
sketch11.addConstraint(Sketcher.Constraint("Equal", 8, 10))
sketch11.addConstraint(Sketcher.Constraint("Equal", 10, 12))
sketch11.addConstraint(Sketcher.Constraint("Equal", 12, 14))
sketch11.addConstraint(Sketcher.Constraint("PointOnObject", 1, 2, -1))
sketch11.addConstraint(Sketcher.Constraint("Vertical", 4, 3, 6, 3))
sketch11.addConstraint(Sketcher.Constraint("Vertical", 8, 3, 10, 3))
sketch11.addConstraint(Sketcher.Constraint("Vertical", 6, 3, 12, 3))
sketch11.addConstraint(Sketcher.Constraint("Vertical", 12, 3, 14, 3))
sketch11.addConstraint(Sketcher.Constraint("Vertical", 3, 2, 4, 2))
sketch11.addConstraint(Sketcher.Constraint("Vertical", 5, 2, 6, 2))
sketch11.addConstraint(Sketcher.Constraint("Vertical", 7, 2, 10, 2))
sketch11.addConstraint(Sketcher.Constraint("Vertical", 11, 2, 12, 2))
sketch11.addConstraint(Sketcher.Constraint("Vertical", 13, 2, 14, 2))
sketch11.addConstraint(Sketcher.Constraint("Equal", 5, 7))
sketch11.addConstraint(Sketcher.Constraint("Equal", 7, 11))
sketch11.addConstraint(Sketcher.Constraint("Equal", 11, 13))
sketch11.addConstraint(Sketcher.Constraint("Equal", 3, 15))
sketch11.addConstraint(Sketcher.Constraint("Radius", 4, Q("2 mm")))
sketch11.addConstraint(Sketcher.Constraint("DistanceX", 0, 2, 0, 1, Q("3 mm")))
sketch11.addConstraint(Sketcher.Constraint("DistanceY", 1, 2, 1, 1, Q("30 mm")))
sketch11.addConstraint(Sketcher.Constraint("DistanceY", 3, 1, 3, 2, Q("1 mm")))
sketch11.addConstraint(Sketcher.Constraint("DistanceY", 9, 1, 9, 2, Q("2 mm")))
sketch11.addConstraint(Sketcher.Constraint("DistanceX", 0, 2, -1, 1, Q("5 mm")))
sketch11.addConstraint(Sketcher.Constraint("DistanceX", 4, 3, -1, 1, Q("3.7 mm")))
sketch11.addConstraint(Sketcher.Constraint("DistanceX", 8, 3, -1, 1, Q("3.699998 mm")))
sketch11.addConstraint(Sketcher.Constraint("DistanceX", 8, 2, -1, 1, Q("1.9 mm")))
revolution4 = body6.newObject("PartDesign::Revolution", "Revolution003")
revolution4.Profile = sketch11
revolution4.ReferenceAxis = (sketch11, ["V_Axis"])
revolution4.Angle = 360
doc.recompute()

chamfer3 = body6.newObject("PartDesign::Chamfer", "Chamfer002")
chamfer3.Base = (revolution4, edges_at(revolution4, [
    (0, 5, 0),
    (0, 2, 0),
    (0, 2, 30),
    (0, 5, 30),
]))
chamfer3.Size = 0.4
body7 = doc.addObject("PartDesign::Body", "Body006")

sketch12 = body7.newObject("Sketcher::SketchObject", "Sketch011")
sketch12.AttachmentSupport = (doc.getObject("YZ_Plane006"), [""])
sketch12.MapMode = "FlatFace"
sketch12.addGeometry(Part.LineSegment(App.Vector(-6.2, 0, 0), App.Vector(0, 0, 0)), False)
sketch12.addGeometry(Part.LineSegment(App.Vector(0, 0, 0), App.Vector(0, 7.1, 0)), False)
sketch12.addGeometry(Part.LineSegment(App.Vector(0, 7.1, 0), App.Vector(-3.2, 7.1, 0)), False)
sketch12.addGeometry(Part.LineSegment(App.Vector(-3.2, 7.1, 0), App.Vector(-3.2, 2.1, 0)), False)
sketch12.addGeometry(Part.LineSegment(App.Vector(-3.2, 2.1, 0), App.Vector(-6.2, 2.1, 0)), False)
sketch12.addGeometry(Part.LineSegment(App.Vector(-6.2, 2.1, 0), App.Vector(-6.2, 0, 0)), False)
sketch12.addConstraint(Sketcher.Constraint("Coincident", 0, 2, 1, 1))
sketch12.addConstraint(Sketcher.Constraint("Coincident", 1, 2, 2, 1))
sketch12.addConstraint(Sketcher.Constraint("Coincident", 2, 2, 3, 1))
sketch12.addConstraint(Sketcher.Constraint("Coincident", 3, 2, 4, 1))
sketch12.addConstraint(Sketcher.Constraint("Coincident", 4, 2, 5, 1))
sketch12.addConstraint(Sketcher.Constraint("Coincident", 5, 2, 0, 1))
sketch12.addConstraint(Sketcher.Constraint("Horizontal", 0))
sketch12.addConstraint(Sketcher.Constraint("Vertical", 1))
sketch12.addConstraint(Sketcher.Constraint("Horizontal", 2))
sketch12.addConstraint(Sketcher.Constraint("Vertical", 3))
sketch12.addConstraint(Sketcher.Constraint("Horizontal", 4))
sketch12.addConstraint(Sketcher.Constraint("Vertical", 5))
sketch12.addConstraint(Sketcher.Constraint("Coincident", 0, 2, -1, 1))
sketch12.addConstraint(Sketcher.Constraint("DistanceX", 4, 2, 4, 1, Q("3 mm")))
sketch12.addConstraint(Sketcher.Constraint("DistanceY", 3, 2, 3, 1, Q("5 mm")))
sketch12.addConstraint(Sketcher.Constraint("DistanceX", 0, 1, 0, 2, Q("6.2 mm")))
sketch12.addConstraint(Sketcher.Constraint("DistanceY", 1, 1, 1, 2, Q("7.1 mm")))
revolution5 = body7.newObject("PartDesign::Revolution", "Revolution004")
revolution5.Profile = sketch12
revolution5.ReferenceAxis = (sketch12, ["V_Axis"])
revolution5.Angle = 360
doc.recompute()

chamfer4 = body7.newObject("PartDesign::Chamfer", "Chamfer003")
chamfer4.Base = (revolution5, edges_at(revolution5, [(0, 3.2, 7.1)]))
chamfer4.Size = 1

doc.recompute()
